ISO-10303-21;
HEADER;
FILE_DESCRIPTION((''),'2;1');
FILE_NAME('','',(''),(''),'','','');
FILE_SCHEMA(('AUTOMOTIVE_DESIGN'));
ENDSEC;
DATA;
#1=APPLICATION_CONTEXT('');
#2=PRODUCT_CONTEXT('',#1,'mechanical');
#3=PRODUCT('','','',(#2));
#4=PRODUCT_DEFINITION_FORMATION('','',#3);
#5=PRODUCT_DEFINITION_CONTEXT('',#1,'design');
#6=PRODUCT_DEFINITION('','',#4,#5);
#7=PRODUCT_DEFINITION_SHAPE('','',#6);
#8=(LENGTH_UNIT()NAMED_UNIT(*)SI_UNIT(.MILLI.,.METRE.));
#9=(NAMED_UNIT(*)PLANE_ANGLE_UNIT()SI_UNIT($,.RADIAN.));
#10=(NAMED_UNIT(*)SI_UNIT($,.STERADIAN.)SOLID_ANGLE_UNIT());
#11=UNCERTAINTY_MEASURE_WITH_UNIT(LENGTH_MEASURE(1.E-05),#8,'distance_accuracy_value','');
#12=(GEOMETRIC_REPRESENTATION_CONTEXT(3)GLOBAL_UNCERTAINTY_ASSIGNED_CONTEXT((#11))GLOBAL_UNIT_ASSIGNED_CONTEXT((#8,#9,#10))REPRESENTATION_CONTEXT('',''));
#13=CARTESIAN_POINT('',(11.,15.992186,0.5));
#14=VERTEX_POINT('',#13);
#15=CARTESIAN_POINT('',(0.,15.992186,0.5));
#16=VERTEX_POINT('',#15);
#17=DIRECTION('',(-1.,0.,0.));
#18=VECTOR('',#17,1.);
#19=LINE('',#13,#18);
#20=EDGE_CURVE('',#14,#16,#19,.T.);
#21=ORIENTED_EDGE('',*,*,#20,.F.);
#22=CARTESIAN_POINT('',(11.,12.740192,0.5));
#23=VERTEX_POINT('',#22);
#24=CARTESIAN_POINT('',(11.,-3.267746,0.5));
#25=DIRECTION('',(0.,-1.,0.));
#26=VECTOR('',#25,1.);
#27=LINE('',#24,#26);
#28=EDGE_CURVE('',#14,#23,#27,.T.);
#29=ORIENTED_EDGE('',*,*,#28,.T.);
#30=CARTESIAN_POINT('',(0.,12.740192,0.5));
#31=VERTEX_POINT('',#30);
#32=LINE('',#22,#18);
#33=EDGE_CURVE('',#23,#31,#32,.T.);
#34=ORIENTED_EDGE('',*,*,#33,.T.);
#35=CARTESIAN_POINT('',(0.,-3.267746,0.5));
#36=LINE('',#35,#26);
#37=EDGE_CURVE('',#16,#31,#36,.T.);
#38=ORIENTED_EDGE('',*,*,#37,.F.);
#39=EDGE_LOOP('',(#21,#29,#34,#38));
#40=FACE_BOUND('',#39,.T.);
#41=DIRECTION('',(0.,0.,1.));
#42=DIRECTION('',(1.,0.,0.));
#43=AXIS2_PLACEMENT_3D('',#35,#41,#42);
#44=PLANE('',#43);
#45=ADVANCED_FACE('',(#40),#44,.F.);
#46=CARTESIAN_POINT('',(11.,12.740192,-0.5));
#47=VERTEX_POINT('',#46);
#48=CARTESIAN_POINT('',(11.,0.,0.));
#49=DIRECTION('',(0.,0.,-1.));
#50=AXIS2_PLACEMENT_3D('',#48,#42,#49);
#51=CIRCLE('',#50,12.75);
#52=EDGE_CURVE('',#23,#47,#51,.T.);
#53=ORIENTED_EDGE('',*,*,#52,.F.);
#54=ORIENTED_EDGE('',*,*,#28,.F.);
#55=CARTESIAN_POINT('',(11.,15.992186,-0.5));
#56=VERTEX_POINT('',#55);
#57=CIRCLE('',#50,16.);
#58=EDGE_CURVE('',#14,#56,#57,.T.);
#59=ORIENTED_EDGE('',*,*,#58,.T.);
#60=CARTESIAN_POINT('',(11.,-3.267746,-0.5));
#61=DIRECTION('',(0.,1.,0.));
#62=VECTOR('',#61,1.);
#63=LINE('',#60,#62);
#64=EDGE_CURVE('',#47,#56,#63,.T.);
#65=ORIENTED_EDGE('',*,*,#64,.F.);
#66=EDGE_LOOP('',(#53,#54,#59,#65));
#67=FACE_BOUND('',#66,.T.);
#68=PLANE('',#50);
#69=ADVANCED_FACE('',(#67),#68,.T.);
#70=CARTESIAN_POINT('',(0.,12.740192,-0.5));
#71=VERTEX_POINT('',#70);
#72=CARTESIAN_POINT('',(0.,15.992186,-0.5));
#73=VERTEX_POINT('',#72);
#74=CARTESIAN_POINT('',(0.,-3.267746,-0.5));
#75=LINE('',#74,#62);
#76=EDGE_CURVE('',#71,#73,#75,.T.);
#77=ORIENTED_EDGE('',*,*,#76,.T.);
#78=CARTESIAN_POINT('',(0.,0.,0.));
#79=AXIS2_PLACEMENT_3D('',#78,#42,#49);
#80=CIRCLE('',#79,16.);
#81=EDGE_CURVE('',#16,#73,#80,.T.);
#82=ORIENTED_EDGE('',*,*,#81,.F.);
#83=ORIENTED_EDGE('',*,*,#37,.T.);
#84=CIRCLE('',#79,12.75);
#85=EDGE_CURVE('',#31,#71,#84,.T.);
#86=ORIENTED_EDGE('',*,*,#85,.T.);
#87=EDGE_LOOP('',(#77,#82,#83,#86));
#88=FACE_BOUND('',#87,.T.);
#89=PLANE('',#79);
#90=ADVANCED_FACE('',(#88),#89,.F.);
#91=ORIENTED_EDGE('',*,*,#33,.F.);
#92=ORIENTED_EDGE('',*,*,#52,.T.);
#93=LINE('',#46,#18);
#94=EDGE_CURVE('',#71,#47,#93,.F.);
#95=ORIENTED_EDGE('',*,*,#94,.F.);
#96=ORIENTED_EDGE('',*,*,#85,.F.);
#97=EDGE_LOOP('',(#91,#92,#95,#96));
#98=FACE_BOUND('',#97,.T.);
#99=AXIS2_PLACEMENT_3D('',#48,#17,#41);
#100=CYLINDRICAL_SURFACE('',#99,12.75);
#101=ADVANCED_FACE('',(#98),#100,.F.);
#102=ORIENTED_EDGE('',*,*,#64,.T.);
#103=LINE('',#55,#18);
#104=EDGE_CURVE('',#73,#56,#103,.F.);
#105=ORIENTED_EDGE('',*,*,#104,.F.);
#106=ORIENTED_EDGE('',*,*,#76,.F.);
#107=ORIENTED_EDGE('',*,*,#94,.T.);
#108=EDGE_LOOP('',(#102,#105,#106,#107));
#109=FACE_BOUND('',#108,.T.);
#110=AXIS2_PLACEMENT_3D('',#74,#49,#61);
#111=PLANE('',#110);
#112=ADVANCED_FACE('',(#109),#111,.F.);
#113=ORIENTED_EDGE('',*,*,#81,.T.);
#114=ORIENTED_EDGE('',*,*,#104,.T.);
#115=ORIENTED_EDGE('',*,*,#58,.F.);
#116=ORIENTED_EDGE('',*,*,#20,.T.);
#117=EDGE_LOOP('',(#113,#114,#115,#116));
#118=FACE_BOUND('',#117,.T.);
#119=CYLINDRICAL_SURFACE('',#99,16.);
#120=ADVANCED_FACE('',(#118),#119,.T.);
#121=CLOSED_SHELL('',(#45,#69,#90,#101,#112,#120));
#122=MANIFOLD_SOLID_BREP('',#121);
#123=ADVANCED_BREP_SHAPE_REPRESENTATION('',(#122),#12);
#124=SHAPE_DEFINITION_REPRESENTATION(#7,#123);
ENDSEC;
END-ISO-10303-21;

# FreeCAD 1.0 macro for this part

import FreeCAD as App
import Part
import Sketcher
from FreeCAD import Vector
Q = App.Units.Quantity


def add_polygon(sketch, points):
    """Adds a closed chain of lines whose ends are joined by coincident constraints."""
    first, n = sketch.GeometryCount, len(points)
    for a, b in zip(points, points[1:] + points[:1]):
        sketch.addGeometry(Part.LineSegment(App.Vector(*a, 0), App.Vector(*b, 0)), False)
    for i in range(n):
        sketch.addConstraint(Sketcher.Constraint("Coincident", first + i, 2, first + (i + 1) % n, 1))

doc = App.newDocument("Part")
body = doc.addObject("PartDesign::Body", "Body")

sketch1 = body.newObject("Sketcher::SketchObject", "Sketch")
sketch1.AttachmentSupport = (doc.getObject("YZ_Plane"), [""])
sketch1.MapMode = "FlatFace"
sketch1.addGeometry(Part.Circle(Vector(0, 0, 0), Vector(0, 0, 1), 16), False)
sketch1.addGeometry(Part.Circle(Vector(0, 0, 0), Vector(0, 0, 1), 13), False)
sketch1.addConstraint(Sketcher.Constraint("Coincident", 0, 3, -1, 1))
sketch1.addConstraint(Sketcher.Constraint("Coincident", 1, 3, -1, 1))
sketch1.addConstraint(Sketcher.Constraint("Diameter", 0, Q("32 mm")))
sketch1.addConstraint(Sketcher.Constraint("Diameter", 1, Q("25.5 mm")))
pad1 = body.newObject("PartDesign::Pad", "Pad")
pad1.Profile = sketch1
pad1.Length = 11

sketch2 = body.newObject("Sketcher::SketchObject", "Sketch001")
sketch2.AttachmentSupport = (doc.getObject("YZ_Plane"), [""])
sketch2.MapMode = "FlatFace"
sketch2.AttachmentOffset = App.Placement(Vector(0, 0, 11), App.Rotation())
add_polygon(sketch2, [(16, 0.5), (-3.3, 0.5), (-3.3, -0.5), (16, -0.5)])
sketch2.addConstraint(Sketcher.Constraint("Horizontal", 0))
sketch2.addConstraint(Sketcher.Constraint("Vertical", 1))
sketch2.addConstraint(Sketcher.Constraint("Horizontal", 2))
sketch2.addConstraint(Sketcher.Constraint("Vertical", 3))
sketch2.addConstraint(Sketcher.Constraint("DistanceY", 1, 2, 1, 1, Q("1 mm")))
sketch2.addConstraint(Sketcher.Constraint("DistanceX", -1, 1, 2, 2, Q("16 mm")))
sketch2.addConstraint(Sketcher.Constraint("DistanceY", -1, 1, 0, 2, Q("0.5 mm")))
sketch2.addConstraint(Sketcher.Constraint("DistanceX", 0, 2, 0, 1, Q("19.267746 mm")))
pocket1 = body.newObject("PartDesign::Pocket", "Pocket")
pocket1.Profile = sketch2
pocket1.Type = "ThroughAll"

doc.recompute()
